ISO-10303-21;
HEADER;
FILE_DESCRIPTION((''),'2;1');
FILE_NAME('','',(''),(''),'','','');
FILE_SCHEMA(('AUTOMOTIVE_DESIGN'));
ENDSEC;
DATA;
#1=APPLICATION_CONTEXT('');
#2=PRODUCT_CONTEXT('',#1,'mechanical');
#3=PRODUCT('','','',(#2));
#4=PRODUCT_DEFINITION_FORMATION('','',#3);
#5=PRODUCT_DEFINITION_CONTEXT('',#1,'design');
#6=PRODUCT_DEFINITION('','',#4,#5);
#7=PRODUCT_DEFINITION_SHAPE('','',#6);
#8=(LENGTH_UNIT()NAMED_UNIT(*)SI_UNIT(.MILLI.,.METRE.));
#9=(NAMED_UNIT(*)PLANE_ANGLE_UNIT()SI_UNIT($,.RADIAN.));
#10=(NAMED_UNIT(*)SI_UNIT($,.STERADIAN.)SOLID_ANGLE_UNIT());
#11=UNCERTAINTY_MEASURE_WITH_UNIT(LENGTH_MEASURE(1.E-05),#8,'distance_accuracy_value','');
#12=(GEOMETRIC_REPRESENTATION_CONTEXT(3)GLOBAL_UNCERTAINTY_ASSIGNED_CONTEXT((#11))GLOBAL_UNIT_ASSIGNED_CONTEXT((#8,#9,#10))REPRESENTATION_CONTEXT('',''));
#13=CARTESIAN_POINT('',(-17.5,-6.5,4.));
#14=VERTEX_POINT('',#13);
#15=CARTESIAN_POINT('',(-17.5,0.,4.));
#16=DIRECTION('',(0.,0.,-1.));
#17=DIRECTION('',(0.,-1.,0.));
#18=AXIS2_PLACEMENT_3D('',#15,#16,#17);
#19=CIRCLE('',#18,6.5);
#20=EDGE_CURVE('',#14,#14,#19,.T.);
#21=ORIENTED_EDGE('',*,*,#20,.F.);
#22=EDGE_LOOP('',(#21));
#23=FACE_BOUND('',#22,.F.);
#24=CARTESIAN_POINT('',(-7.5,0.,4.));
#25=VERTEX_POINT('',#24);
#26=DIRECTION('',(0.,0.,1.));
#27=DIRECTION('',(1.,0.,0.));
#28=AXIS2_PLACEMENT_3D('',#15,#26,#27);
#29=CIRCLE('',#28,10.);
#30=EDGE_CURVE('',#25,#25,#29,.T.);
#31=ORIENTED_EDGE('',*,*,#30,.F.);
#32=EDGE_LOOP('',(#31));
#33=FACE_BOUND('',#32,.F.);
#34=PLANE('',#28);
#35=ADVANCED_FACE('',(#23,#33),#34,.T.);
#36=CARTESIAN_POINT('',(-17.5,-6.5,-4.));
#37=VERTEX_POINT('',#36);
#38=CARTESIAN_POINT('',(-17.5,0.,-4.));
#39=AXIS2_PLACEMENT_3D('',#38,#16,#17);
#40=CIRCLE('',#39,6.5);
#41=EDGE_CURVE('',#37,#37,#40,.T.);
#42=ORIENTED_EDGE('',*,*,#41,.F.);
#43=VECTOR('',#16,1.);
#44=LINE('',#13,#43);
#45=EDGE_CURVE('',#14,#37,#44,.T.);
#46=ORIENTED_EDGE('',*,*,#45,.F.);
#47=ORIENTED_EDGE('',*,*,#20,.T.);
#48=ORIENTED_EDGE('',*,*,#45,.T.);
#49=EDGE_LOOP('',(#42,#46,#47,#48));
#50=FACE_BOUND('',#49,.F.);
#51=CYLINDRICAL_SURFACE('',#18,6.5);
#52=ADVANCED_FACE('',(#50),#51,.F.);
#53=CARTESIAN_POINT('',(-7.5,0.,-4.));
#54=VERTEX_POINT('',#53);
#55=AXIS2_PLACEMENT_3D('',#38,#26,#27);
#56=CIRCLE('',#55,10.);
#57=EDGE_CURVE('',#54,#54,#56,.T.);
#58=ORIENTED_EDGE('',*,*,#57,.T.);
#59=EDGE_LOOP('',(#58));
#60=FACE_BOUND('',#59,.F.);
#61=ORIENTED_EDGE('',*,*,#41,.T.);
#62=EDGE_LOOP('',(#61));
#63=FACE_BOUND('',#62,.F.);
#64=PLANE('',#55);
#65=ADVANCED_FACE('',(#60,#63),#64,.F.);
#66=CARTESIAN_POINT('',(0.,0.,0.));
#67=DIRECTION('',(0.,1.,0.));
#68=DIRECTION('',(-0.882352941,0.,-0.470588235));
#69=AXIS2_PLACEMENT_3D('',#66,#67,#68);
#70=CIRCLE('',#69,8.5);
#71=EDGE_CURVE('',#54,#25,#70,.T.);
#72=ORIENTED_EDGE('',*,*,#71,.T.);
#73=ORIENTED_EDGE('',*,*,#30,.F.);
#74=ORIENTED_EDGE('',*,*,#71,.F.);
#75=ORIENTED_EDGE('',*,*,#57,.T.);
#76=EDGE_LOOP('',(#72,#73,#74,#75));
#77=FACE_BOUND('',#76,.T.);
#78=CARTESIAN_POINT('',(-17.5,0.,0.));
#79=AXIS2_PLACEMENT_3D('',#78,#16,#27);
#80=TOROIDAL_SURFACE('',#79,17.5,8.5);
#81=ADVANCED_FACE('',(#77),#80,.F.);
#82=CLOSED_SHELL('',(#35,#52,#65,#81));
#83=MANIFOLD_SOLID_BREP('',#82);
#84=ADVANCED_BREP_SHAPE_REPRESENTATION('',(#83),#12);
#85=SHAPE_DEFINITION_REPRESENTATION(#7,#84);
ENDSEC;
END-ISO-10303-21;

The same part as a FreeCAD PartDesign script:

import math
import FreeCAD as App
import Part
import Sketcher

doc = App.newDocument("Part")
body = doc.addObject("PartDesign::Body", "Body")

# Sketch on XZ plane
sketch1 = body.newObject("Sketcher::SketchObject", "Sketch")
sketch1.AttachmentSupport = (doc.getObject("XZ_Plane"), [""])
sketch1.MapMode = "FlatFace"
sketch1.addGeometry([
    Part.ArcOfCircle(Part.Circle(App.Vector(0, 0, 0), App.Vector(0, 0, 1), 8), math.radians(152), math.radians(208)),
    Part.LineSegment(App.Vector(-8, -4, 0), App.Vector(-18, -4, 0)),
    Part.LineSegment(App.Vector(-18, -4, 0), App.Vector(-18, 4, 0)),
    Part.LineSegment(App.Vector(-18, 4, 0), App.Vector(-8, 4, 0)),
], False)
sketch1.addGeometry(Part.LineSegment(App.Vector(-18, -4, 0), App.Vector(-18, 4, 0)), True)  # axis
sketch1.addConstraint([
    Sketcher.Constraint("Coincident", 0, 2, 1, 1),
    Sketcher.Constraint("Coincident", 1, 2, 2, 1),
    Sketcher.Constraint("Coincident", 2, 2, 3, 1),
    Sketcher.Constraint("Coincident", 3, 2, 0, 1),
    Sketcher.Constraint("Horizontal", 1),
    Sketcher.Constraint("Vertical", 2),
    Sketcher.Constraint("Horizontal", 3),
    Sketcher.Constraint("Vertical", 4),
    Sketcher.Constraint("Coincident", 0, 3, -1, 1),
    Sketcher.Constraint("Coincident", 4, 1, 1, 2),
    Sketcher.Constraint("Horizontal", 3, 2, 4, 2),
    Sketcher.Constraint("Vertical", 0, 2, 3, 2),
    Sketcher.Constraint("Radius", 0, 8.5),
    Sketcher.Constraint("DistanceX", 1, 2, 1, 1, 10.0),
    Sketcher.Constraint("DistanceY", 2, 1, 2, 2, 8.0),
])
revolution = body.newObject("PartDesign::Revolution", "Revolution")
revolution.Profile = sketch1
revolution.ReferenceAxis = (sketch1, ["Axis0"])
revolution.Angle = 360

# Sketch on XY plane
sketch2 = body.newObject("Sketcher::SketchObject", "Sketch001")
sketch2.AttachmentSupport = (doc.getObject("XY_Plane"), [""])
sketch2.MapMode = "FlatFace"
sketch2.AttachmentOffset = App.Placement(App.Vector(0, 0, 4), App.Rotation())
sketch2.addGeometry(Part.Circle(App.Vector(-18, 0, 0), App.Vector(0, 0, 1), 6), False)
sketch2.addConstraint([
    Sketcher.Constraint("PointOnObject", 0, 3, -1),
    Sketcher.Constraint("Diameter", 0, 13.0),
    Sketcher.Constraint("DistanceX", 0, 3, -1, 1, 17.5),
])
doc.recompute()
hole = body.newObject("PartDesign::Hole", "Hole")
hole.Profile = sketch2
hole.ThreadType = "None"
hole.Diameter = 13
hole.DepthType = "ThroughAll"

doc.recompute()
